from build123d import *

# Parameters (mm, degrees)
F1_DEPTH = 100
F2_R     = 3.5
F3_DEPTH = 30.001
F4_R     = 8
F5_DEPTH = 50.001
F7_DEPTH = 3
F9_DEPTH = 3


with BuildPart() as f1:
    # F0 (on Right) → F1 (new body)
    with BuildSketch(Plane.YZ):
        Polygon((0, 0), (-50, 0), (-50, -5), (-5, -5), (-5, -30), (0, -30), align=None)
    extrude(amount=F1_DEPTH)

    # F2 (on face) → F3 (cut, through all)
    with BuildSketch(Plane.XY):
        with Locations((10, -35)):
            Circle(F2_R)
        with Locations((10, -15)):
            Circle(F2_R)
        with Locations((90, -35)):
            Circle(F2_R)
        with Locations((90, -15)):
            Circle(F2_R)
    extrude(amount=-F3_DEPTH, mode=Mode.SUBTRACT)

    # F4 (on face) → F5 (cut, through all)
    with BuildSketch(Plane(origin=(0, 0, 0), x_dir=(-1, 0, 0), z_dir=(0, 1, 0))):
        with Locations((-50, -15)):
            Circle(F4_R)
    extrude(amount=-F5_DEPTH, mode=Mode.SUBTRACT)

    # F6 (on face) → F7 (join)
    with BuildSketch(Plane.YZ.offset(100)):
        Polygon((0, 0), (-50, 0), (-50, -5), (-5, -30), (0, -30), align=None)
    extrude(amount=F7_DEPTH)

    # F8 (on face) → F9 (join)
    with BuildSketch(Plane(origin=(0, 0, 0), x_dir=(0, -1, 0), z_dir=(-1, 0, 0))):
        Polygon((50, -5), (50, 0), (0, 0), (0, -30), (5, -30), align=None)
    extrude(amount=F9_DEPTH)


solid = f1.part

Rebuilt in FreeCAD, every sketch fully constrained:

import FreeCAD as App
import Part
import Sketcher

V = App.Vector

doc = App.newDocument("Part")
body = doc.addObject("PartDesign::Body", "Body")

# Sketch on YZ plane
sketch1 = doc.addObject("Sketcher::SketchObject", "Sketch")
body.addObject(sketch1)
sketch1.AttachmentSupport = (doc.YZ_Plane, [""])
sketch1.MapMode = "FlatFace"
sketch1.addGeometry([
    Part.LineSegment(V(0, 0, 0), V(-50, 0, 0)),  # 0
    Part.LineSegment(V(-50, 0, 0), V(-50, -5, 0)),  # 1
    Part.LineSegment(V(-50, -5, 0), V(-5, -5, 0)),  # 2
    Part.LineSegment(V(-5, -5, 0), V(-5, -30, 0)),  # 3
    Part.LineSegment(V(-5, -30, 0), V(0, -30, 0)),  # 4
    Part.LineSegment(V(0, -30, 0), V(0, 0, 0)),  # 5
], False)
sketch1.addConstraint([
    Sketcher.Constraint("Coincident", 0, 2, 1, 1),
    Sketcher.Constraint("Coincident", 1, 2, 2, 1),
    Sketcher.Constraint("Coincident", 2, 2, 3, 1),
    Sketcher.Constraint("Coincident", 3, 2, 4, 1),
    Sketcher.Constraint("Coincident", 4, 2, 5, 1),
    Sketcher.Constraint("Coincident", 5, 2, 0, 1),
    Sketcher.Constraint("Horizontal", 0),
    Sketcher.Constraint("Vertical", 1),
    Sketcher.Constraint("Horizontal", 2),
    Sketcher.Constraint("Vertical", 3),
    Sketcher.Constraint("Horizontal", 4),
    Sketcher.Constraint("Vertical", 5),
    Sketcher.Constraint("Coincident", 5, 2, -1, 1),
    Sketcher.Constraint("Equal", 4, 1),
    Sketcher.Constraint("DistanceX", 0, 2, 0, 1, 50.0),
    Sketcher.Constraint("DistanceX", 2, 1, 2, 2, 45.0),
    Sketcher.Constraint("DistanceY", 3, 2, 3, 1, 25.0),
])
pad1 = doc.addObject("PartDesign::Pad", "Pad")
body.addObject(pad1)
pad1.Profile = sketch1
pad1.Length = 100

# Sketch on XY plane
sketch2 = doc.addObject("Sketcher::SketchObject", "Sketch001")
body.addObject(sketch2)
sketch2.AttachmentSupport = (doc.XY_Plane, [""])
sketch2.MapMode = "FlatFace"
sketch2.addGeometry([
    Part.Circle(V(10, -35, 0), V(0, 0, 1), 3.5),
    Part.Circle(V(10, -15, 0), V(0, 0, 1), 3.5),
    Part.Circle(V(90, -35, 0), V(0, 0, 1), 3.5),
    Part.Circle(V(90, -15, 0), V(0, 0, 1), 3.5),
], False)
sketch2.addConstraint([
    Sketcher.Constraint("Equal", 0, 1),
    Sketcher.Constraint("Equal", 1, 2),
    Sketcher.Constraint("Equal", 2, 3),
    Sketcher.Constraint("Horizontal", 0, 3, 2, 3),
    Sketcher.Constraint("Horizontal", 1, 3, 3, 3),
    Sketcher.Constraint("Vertical", 0, 3, 1, 3),
    Sketcher.Constraint("Vertical", 2, 3, 3, 3),
    Sketcher.Constraint("Diameter", 0, 7.0),
    Sketcher.Constraint("DistanceX", -1, 1, 0, 3, 10.0),
    Sketcher.Constraint("DistanceY", 0, 3, -1, 1, 35.0),
    Sketcher.Constraint("DistanceY", 1, 3, -1, 1, 15.0),
    Sketcher.Constraint("DistanceX", -1, 1, 2, 3, 90.0),
])
pocket1 = doc.addObject("PartDesign::Pocket", "Pocket")
body.addObject(pocket1)
pocket1.Profile = sketch2
pocket1.Type = "ThroughAll"

# Sketch on XZ plane
sketch3 = doc.addObject("Sketcher::SketchObject", "Sketch002")
body.addObject(sketch3)
sketch3.AttachmentSupport = (doc.XZ_Plane, [""])
sketch3.MapMode = "FlatFace"
sketch3.addGeometry(Part.Circle(V(50, -15, 0), V(0, 0, 1), 8), False)
sketch3.addConstraint([
    Sketcher.Constraint("Diameter", 0, 16.0),
    Sketcher.Constraint("DistanceX", -1, 1, 0, 3, 50.0),
    Sketcher.Constraint("DistanceY", 0, 3, -1, 1, 15.0),
])
pocket2 = doc.addObject("PartDesign::Pocket", "Pocket001")
body.addObject(pocket2)
pocket2.Profile = sketch3
pocket2.Type = "ThroughAll"
pocket2.Reversed = True

# Sketch on YZ plane
sketch4 = doc.addObject("Sketcher::SketchObject", "Sketch003")
body.addObject(sketch4)
sketch4.AttachmentSupport = (doc.YZ_Plane, [""])
sketch4.MapMode = "FlatFace"
sketch4.AttachmentOffset = App.Placement(V(0, 0, 100), App.Rotation())
sketch4.addGeometry([
    Part.LineSegment(V(0, 0, 0), V(-50, 0, 0)),  # 0
    Part.LineSegment(V(-50, 0, 0), V(-50, -5, 0)),  # 1
    Part.LineSegment(V(-50, -5, 0), V(-5, -30, 0)),  # 2
    Part.LineSegment(V(-5, -30, 0), V(0, -30, 0)),  # 3
    Part.LineSegment(V(0, -30, 0), V(0, 0, 0)),  # 4
], False)
sketch4.addConstraint([
    Sketcher.Constraint("Coincident", 0, 2, 1, 1),
    Sketcher.Constraint("Coincident", 1, 2, 2, 1),
    Sketcher.Constraint("Coincident", 2, 2, 3, 1),
    Sketcher.Constraint("Coincident", 3, 2, 4, 1),
    Sketcher.Constraint("Coincident", 4, 2, 0, 1),
    Sketcher.Constraint("Horizontal", 0),
    Sketcher.Constraint("Vertical", 1),
    Sketcher.Constraint("Horizontal", 3),
    Sketcher.Constraint("Vertical", 4),
    Sketcher.Constraint("Coincident", 4, 2, -1, 1),
    Sketcher.Constraint("Equal", 3, 1),
    Sketcher.Constraint("DistanceX", 0, 2, 0, 1, 50.0),
    Sketcher.Constraint("DistanceX", 3, 1, 3, 2, 5.0),
    Sketcher.Constraint("DistanceY", 4, 1, 4, 2, 30.0),
])
pad2 = doc.addObject("PartDesign::Pad", "Pad001")
body.addObject(pad2)
pad2.Profile = sketch4
pad2.Length = 3

# Sketch on YZ plane
sketch5 = doc.addObject("Sketcher::SketchObject", "Sketch004")
body.addObject(sketch5)
sketch5.AttachmentSupport = (doc.YZ_Plane, [""])
sketch5.MapMode = "FlatFace"
sketch5.addGeometry([
    Part.LineSegment(V(-50, -5, 0), V(-50, 0, 0)),  # 0
    Part.LineSegment(V(-50, 0, 0), V(0, 0, 0)),  # 1
    Part.LineSegment(V(0, 0, 0), V(0, -30, 0)),  # 2
    Part.LineSegment(V(0, -30, 0), V(-5, -30, 0)),  # 3
    Part.LineSegment(V(-5, -30, 0), V(-50, -5, 0)),  # 4
], False)
sketch5.addConstraint([
    Sketcher.Constraint("Coincident", 0, 2, 1, 1),
    Sketcher.Constraint("Coincident", 1, 2, 2, 1),
    Sketcher.Constraint("Coincident", 2, 2, 3, 1),
    Sketcher.Constraint("Coincident", 3, 2, 4, 1),
    Sketcher.Constraint("Coincident", 4, 2, 0, 1),
    Sketcher.Constraint("Vertical", 0),
    Sketcher.Constraint("Horizontal", 1),
    Sketcher.Constraint("Vertical", 2),
    Sketcher.Constraint("Horizontal", 3),
    Sketcher.Constraint("Coincident", 1, 2, -1, 1),
    Sketcher.Constraint("Equal", 3, 0),
    Sketcher.Constraint("DistanceX", 1, 1, 1, 2, 50.0),
    Sketcher.Constraint("DistanceX", 3, 2, 3, 1, 5.0),
    Sketcher.Constraint("DistanceY", 2, 2, 2, 1, 30.0),
])
pad3 = doc.addObject("PartDesign::Pad", "Pad002")
body.addObject(pad3)
pad3.Profile = sketch5
pad3.Length = 3
pad3.Reversed = True

doc.recompute()
